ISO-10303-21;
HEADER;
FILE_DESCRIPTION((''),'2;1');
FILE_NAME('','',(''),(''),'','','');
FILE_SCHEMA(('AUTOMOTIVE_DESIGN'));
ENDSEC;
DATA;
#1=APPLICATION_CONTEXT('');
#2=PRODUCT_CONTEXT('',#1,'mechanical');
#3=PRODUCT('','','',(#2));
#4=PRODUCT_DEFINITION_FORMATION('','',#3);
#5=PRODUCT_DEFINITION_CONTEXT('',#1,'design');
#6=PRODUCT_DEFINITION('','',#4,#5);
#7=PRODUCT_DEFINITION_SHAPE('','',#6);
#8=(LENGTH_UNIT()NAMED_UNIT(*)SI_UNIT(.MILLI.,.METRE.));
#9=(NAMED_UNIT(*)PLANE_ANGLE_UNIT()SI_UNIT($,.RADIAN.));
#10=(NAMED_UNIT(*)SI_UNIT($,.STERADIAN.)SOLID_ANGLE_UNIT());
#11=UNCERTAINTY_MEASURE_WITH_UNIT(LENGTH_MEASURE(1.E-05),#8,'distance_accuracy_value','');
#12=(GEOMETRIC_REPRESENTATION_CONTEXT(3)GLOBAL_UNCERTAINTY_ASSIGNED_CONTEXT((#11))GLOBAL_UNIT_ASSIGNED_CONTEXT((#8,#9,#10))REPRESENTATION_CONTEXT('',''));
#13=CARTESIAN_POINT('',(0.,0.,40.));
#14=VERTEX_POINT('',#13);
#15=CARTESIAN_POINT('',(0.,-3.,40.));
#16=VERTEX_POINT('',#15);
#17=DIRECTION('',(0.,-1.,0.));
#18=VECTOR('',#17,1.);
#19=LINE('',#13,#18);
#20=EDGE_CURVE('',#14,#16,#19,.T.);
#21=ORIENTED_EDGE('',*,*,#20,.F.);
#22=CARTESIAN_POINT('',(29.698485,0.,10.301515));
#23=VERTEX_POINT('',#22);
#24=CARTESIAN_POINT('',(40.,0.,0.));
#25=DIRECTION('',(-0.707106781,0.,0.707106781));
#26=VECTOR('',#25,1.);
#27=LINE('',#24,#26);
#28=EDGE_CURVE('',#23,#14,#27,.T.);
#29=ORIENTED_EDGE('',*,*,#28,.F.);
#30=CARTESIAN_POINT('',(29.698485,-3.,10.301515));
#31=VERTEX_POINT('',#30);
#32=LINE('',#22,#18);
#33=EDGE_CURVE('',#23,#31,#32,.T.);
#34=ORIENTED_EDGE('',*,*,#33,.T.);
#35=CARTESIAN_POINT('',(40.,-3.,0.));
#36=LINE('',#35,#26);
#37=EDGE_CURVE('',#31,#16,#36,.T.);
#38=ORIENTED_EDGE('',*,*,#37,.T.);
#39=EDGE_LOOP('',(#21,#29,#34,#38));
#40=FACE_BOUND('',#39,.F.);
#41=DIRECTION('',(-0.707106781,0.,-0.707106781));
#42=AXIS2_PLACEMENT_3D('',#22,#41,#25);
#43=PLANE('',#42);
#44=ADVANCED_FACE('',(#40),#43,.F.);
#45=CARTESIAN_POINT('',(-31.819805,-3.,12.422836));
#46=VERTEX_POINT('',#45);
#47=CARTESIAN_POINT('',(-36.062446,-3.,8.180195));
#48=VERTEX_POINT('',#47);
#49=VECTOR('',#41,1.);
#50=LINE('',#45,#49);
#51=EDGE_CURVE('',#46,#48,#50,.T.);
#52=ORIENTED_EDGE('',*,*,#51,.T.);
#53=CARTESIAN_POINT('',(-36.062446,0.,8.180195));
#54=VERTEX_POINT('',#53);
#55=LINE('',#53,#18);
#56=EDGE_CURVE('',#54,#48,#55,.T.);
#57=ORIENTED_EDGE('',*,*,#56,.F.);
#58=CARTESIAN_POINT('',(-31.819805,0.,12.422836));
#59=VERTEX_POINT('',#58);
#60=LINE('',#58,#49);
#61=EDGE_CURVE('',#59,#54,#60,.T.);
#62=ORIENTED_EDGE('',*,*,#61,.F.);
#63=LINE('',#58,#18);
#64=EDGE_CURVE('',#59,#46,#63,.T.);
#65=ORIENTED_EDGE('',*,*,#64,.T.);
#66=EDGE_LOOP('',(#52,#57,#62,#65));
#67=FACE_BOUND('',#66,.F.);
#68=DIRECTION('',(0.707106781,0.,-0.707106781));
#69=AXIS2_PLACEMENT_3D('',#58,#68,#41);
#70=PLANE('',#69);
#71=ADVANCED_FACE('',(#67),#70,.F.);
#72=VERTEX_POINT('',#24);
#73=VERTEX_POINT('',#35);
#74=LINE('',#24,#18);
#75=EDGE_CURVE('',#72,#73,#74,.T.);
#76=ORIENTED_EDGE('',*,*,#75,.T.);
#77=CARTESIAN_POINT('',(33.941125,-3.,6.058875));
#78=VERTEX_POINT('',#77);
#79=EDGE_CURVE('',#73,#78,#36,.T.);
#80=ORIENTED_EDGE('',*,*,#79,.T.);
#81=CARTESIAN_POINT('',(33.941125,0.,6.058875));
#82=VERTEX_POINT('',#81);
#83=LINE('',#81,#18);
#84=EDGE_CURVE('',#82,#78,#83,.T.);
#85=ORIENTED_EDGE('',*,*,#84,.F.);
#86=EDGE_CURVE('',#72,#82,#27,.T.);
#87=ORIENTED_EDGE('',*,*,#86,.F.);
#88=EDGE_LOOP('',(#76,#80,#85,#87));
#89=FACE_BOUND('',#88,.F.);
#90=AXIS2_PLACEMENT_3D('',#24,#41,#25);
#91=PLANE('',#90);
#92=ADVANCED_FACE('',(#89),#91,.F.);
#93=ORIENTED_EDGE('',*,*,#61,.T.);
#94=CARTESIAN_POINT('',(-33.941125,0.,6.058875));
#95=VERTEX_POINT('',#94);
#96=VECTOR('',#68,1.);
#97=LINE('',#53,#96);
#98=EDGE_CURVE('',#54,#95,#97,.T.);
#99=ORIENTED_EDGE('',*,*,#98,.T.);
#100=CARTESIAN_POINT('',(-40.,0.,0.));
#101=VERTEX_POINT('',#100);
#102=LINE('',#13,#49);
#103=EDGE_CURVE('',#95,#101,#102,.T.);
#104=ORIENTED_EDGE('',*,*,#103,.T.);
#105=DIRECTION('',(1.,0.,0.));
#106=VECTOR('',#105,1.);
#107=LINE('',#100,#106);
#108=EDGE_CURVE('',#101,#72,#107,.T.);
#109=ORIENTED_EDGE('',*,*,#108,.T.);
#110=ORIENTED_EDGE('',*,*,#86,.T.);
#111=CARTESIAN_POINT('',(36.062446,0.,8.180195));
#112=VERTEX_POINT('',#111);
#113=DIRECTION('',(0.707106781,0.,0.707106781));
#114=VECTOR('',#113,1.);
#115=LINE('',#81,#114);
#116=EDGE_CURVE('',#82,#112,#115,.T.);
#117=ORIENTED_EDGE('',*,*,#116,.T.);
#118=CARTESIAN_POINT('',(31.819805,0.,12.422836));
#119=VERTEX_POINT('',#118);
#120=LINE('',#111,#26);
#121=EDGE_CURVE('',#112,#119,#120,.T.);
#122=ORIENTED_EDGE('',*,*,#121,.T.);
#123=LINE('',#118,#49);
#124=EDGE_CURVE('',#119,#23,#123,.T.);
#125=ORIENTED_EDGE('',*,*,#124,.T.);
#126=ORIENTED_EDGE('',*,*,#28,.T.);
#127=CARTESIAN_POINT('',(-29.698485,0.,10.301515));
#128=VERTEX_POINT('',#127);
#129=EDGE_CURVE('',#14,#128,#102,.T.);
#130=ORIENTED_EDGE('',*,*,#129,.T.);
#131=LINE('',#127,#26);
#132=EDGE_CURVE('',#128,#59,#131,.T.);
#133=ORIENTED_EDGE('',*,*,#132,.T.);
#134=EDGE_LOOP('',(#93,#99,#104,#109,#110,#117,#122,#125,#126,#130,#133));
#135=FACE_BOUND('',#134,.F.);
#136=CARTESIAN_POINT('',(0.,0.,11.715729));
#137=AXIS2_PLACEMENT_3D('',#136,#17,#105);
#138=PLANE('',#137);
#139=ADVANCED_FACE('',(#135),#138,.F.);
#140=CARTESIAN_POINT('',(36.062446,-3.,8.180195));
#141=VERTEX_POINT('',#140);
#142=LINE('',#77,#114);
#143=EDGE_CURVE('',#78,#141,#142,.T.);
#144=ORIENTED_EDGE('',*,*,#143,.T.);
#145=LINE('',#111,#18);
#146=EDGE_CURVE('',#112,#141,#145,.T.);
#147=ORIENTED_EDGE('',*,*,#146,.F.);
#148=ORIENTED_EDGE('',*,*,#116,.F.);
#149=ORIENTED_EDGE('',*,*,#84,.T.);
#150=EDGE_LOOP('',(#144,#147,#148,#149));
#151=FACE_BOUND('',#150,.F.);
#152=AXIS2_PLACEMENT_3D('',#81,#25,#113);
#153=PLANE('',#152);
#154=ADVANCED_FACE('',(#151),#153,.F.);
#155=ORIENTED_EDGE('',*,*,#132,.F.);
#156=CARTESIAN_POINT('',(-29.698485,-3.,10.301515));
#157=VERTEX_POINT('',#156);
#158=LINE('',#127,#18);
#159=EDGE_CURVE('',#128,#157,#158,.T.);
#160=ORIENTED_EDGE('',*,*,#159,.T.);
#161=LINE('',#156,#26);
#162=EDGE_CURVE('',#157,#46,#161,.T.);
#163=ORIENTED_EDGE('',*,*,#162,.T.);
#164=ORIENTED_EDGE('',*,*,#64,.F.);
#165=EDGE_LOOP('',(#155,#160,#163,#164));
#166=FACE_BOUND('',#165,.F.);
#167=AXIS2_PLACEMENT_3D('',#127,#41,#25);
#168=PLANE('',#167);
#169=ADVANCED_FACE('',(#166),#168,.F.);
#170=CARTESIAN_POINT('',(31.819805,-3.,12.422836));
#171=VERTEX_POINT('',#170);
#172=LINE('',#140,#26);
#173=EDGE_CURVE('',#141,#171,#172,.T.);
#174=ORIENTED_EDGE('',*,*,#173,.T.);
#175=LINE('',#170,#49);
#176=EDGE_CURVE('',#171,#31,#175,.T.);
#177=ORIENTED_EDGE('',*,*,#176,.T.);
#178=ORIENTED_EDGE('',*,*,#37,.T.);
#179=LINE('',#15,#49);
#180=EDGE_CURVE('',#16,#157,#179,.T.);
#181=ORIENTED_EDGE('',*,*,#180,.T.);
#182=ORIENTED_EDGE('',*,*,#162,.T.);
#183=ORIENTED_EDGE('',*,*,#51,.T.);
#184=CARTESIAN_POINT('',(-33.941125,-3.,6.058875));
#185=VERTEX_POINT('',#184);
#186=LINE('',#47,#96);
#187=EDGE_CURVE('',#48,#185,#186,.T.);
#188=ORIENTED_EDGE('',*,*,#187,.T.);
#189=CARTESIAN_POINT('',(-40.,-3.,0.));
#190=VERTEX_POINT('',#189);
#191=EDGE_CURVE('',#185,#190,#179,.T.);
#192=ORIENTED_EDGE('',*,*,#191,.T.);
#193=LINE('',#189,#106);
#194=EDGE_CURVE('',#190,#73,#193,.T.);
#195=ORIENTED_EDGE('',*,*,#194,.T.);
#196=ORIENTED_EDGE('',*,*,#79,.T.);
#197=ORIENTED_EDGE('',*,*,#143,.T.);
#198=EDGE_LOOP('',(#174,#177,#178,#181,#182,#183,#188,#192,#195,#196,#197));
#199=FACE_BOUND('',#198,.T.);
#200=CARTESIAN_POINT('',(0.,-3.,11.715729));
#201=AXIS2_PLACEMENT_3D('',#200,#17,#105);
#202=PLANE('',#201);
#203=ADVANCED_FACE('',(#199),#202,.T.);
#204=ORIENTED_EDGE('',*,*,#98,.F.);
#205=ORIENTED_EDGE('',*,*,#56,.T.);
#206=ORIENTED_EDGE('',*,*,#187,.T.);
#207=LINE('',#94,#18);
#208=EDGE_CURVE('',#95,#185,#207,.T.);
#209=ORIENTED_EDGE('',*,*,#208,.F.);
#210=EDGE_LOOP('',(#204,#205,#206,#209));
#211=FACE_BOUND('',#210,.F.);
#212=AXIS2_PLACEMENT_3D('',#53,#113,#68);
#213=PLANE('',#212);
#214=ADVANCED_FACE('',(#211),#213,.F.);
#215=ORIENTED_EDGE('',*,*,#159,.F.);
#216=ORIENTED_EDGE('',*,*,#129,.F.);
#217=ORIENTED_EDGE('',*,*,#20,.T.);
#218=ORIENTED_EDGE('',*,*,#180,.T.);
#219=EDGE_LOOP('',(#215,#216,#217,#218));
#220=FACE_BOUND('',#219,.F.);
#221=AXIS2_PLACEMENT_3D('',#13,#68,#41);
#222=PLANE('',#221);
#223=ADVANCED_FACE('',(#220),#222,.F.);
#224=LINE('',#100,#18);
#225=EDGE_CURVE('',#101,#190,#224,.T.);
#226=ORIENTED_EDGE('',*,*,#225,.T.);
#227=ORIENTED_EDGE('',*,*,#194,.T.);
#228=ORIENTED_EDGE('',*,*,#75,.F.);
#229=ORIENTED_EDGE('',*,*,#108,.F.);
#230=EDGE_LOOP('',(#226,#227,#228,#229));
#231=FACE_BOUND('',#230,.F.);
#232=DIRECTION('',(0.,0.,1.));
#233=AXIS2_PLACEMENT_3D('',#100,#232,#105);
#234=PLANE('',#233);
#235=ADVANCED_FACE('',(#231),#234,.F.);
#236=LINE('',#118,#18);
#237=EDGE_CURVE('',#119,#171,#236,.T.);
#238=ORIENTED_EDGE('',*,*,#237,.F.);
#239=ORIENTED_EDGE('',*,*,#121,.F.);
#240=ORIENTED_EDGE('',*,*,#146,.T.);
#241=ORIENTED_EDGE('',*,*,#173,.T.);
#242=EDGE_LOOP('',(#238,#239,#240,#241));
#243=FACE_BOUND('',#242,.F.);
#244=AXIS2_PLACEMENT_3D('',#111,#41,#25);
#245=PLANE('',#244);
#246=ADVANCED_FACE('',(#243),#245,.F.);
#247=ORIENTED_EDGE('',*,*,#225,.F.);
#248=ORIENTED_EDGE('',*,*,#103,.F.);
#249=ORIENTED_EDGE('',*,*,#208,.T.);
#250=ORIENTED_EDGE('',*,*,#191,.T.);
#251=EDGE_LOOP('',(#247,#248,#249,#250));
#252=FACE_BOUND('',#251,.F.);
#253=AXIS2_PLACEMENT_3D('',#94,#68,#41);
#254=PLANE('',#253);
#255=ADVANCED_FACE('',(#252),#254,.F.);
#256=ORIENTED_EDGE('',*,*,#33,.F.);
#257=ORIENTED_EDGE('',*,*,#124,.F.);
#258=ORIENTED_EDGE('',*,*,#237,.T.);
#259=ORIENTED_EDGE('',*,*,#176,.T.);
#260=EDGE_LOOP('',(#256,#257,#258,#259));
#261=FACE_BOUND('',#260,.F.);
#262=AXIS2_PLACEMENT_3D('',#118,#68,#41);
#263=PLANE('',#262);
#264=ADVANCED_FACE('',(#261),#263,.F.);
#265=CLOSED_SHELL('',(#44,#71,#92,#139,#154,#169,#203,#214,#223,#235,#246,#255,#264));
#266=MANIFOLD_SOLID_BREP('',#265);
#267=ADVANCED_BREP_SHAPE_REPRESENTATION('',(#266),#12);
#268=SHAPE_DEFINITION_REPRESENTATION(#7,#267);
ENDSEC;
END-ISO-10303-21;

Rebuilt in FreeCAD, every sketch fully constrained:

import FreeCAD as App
import Part
import Sketcher
Q = App.Units.Quantity


def add_polygon(sketch, points):
    """Adds a closed chain of lines whose ends are joined by coincident constraints."""
    first, n = sketch.GeometryCount, len(points)
    for a, b in zip(points, points[1:] + points[:1]):
        sketch.addGeometry(Part.LineSegment(App.Vector(*a, 0), App.Vector(*b, 0)), False)
    for i in range(n):
        sketch.addConstraint(Sketcher.Constraint("Coincident", first + i, 2, first + (i + 1) % n, 1))

doc = App.newDocument("Part")
body = doc.addObject("PartDesign::Body", "Body")

sketch1 = body.newObject("Sketcher::SketchObject", "Sketch")
sketch1.AttachmentSupport = (doc.getObject("XZ_Plane"), [""])
sketch1.MapMode = "FlatFace"
add_polygon(sketch1, [(-40, 0), (40, 0), (33.941125, 6.058875), (36.062446, 8.180195), (31.819805, 12.422836), (29.698485, 10.301515), (0, 40), (-29.698485, 10.301515), (-31.819805, 12.422836), (-36.062446, 8.180195), (-33.941125, 6.058875)])
sketch1.addConstraint(Sketcher.Constraint("Horizontal", 0))
sketch1.addConstraint(Sketcher.Constraint("Symmetric", 0, 2, 10, 2, -1, 1))
sketch1.addConstraint(Sketcher.Constraint("Symmetric", 4, 2, 6, 2, -2))
sketch1.addConstraint(Sketcher.Constraint("Symmetric", 3, 2, 7, 2, -2))
sketch1.addConstraint(Sketcher.Constraint("Symmetric", 2, 2, 8, 2, -2))
sketch1.addConstraint(Sketcher.Constraint("Symmetric", 1, 2, 9, 2, -2))
sketch1.addConstraint(Sketcher.Constraint("PointOnObject", 5, 2, -2))
sketch1.addConstraint(Sketcher.Constraint("Perpendicular", 1, 2))
sketch1.addConstraint(Sketcher.Constraint("Perpendicular", 2, 3))
sketch1.addConstraint(Sketcher.Constraint("Perpendicular", 3, 4))
sketch1.addConstraint(Sketcher.Constraint("Perpendicular", 4, 5))
sketch1.addConstraint(Sketcher.Constraint("Perpendicular", 5, 6))
sketch1.addConstraint(Sketcher.Constraint("Equal", 2, 4))
sketch1.addConstraint(Sketcher.Constraint("DistanceX", 0, 1, 0, 2, Q("80 mm")))
sketch1.addConstraint(Sketcher.Constraint("Distance", 2, Q("3 mm")))
sketch1.addConstraint(Sketcher.Constraint("Distance", 3, Q("6 mm")))
sketch1.addConstraint(Sketcher.Constraint("Distance", 5, Q("42 mm")))
pad1 = body.newObject("PartDesign::Pad", "Pad")
pad1.Profile = sketch1
pad1.Length = 3

doc.recompute()
